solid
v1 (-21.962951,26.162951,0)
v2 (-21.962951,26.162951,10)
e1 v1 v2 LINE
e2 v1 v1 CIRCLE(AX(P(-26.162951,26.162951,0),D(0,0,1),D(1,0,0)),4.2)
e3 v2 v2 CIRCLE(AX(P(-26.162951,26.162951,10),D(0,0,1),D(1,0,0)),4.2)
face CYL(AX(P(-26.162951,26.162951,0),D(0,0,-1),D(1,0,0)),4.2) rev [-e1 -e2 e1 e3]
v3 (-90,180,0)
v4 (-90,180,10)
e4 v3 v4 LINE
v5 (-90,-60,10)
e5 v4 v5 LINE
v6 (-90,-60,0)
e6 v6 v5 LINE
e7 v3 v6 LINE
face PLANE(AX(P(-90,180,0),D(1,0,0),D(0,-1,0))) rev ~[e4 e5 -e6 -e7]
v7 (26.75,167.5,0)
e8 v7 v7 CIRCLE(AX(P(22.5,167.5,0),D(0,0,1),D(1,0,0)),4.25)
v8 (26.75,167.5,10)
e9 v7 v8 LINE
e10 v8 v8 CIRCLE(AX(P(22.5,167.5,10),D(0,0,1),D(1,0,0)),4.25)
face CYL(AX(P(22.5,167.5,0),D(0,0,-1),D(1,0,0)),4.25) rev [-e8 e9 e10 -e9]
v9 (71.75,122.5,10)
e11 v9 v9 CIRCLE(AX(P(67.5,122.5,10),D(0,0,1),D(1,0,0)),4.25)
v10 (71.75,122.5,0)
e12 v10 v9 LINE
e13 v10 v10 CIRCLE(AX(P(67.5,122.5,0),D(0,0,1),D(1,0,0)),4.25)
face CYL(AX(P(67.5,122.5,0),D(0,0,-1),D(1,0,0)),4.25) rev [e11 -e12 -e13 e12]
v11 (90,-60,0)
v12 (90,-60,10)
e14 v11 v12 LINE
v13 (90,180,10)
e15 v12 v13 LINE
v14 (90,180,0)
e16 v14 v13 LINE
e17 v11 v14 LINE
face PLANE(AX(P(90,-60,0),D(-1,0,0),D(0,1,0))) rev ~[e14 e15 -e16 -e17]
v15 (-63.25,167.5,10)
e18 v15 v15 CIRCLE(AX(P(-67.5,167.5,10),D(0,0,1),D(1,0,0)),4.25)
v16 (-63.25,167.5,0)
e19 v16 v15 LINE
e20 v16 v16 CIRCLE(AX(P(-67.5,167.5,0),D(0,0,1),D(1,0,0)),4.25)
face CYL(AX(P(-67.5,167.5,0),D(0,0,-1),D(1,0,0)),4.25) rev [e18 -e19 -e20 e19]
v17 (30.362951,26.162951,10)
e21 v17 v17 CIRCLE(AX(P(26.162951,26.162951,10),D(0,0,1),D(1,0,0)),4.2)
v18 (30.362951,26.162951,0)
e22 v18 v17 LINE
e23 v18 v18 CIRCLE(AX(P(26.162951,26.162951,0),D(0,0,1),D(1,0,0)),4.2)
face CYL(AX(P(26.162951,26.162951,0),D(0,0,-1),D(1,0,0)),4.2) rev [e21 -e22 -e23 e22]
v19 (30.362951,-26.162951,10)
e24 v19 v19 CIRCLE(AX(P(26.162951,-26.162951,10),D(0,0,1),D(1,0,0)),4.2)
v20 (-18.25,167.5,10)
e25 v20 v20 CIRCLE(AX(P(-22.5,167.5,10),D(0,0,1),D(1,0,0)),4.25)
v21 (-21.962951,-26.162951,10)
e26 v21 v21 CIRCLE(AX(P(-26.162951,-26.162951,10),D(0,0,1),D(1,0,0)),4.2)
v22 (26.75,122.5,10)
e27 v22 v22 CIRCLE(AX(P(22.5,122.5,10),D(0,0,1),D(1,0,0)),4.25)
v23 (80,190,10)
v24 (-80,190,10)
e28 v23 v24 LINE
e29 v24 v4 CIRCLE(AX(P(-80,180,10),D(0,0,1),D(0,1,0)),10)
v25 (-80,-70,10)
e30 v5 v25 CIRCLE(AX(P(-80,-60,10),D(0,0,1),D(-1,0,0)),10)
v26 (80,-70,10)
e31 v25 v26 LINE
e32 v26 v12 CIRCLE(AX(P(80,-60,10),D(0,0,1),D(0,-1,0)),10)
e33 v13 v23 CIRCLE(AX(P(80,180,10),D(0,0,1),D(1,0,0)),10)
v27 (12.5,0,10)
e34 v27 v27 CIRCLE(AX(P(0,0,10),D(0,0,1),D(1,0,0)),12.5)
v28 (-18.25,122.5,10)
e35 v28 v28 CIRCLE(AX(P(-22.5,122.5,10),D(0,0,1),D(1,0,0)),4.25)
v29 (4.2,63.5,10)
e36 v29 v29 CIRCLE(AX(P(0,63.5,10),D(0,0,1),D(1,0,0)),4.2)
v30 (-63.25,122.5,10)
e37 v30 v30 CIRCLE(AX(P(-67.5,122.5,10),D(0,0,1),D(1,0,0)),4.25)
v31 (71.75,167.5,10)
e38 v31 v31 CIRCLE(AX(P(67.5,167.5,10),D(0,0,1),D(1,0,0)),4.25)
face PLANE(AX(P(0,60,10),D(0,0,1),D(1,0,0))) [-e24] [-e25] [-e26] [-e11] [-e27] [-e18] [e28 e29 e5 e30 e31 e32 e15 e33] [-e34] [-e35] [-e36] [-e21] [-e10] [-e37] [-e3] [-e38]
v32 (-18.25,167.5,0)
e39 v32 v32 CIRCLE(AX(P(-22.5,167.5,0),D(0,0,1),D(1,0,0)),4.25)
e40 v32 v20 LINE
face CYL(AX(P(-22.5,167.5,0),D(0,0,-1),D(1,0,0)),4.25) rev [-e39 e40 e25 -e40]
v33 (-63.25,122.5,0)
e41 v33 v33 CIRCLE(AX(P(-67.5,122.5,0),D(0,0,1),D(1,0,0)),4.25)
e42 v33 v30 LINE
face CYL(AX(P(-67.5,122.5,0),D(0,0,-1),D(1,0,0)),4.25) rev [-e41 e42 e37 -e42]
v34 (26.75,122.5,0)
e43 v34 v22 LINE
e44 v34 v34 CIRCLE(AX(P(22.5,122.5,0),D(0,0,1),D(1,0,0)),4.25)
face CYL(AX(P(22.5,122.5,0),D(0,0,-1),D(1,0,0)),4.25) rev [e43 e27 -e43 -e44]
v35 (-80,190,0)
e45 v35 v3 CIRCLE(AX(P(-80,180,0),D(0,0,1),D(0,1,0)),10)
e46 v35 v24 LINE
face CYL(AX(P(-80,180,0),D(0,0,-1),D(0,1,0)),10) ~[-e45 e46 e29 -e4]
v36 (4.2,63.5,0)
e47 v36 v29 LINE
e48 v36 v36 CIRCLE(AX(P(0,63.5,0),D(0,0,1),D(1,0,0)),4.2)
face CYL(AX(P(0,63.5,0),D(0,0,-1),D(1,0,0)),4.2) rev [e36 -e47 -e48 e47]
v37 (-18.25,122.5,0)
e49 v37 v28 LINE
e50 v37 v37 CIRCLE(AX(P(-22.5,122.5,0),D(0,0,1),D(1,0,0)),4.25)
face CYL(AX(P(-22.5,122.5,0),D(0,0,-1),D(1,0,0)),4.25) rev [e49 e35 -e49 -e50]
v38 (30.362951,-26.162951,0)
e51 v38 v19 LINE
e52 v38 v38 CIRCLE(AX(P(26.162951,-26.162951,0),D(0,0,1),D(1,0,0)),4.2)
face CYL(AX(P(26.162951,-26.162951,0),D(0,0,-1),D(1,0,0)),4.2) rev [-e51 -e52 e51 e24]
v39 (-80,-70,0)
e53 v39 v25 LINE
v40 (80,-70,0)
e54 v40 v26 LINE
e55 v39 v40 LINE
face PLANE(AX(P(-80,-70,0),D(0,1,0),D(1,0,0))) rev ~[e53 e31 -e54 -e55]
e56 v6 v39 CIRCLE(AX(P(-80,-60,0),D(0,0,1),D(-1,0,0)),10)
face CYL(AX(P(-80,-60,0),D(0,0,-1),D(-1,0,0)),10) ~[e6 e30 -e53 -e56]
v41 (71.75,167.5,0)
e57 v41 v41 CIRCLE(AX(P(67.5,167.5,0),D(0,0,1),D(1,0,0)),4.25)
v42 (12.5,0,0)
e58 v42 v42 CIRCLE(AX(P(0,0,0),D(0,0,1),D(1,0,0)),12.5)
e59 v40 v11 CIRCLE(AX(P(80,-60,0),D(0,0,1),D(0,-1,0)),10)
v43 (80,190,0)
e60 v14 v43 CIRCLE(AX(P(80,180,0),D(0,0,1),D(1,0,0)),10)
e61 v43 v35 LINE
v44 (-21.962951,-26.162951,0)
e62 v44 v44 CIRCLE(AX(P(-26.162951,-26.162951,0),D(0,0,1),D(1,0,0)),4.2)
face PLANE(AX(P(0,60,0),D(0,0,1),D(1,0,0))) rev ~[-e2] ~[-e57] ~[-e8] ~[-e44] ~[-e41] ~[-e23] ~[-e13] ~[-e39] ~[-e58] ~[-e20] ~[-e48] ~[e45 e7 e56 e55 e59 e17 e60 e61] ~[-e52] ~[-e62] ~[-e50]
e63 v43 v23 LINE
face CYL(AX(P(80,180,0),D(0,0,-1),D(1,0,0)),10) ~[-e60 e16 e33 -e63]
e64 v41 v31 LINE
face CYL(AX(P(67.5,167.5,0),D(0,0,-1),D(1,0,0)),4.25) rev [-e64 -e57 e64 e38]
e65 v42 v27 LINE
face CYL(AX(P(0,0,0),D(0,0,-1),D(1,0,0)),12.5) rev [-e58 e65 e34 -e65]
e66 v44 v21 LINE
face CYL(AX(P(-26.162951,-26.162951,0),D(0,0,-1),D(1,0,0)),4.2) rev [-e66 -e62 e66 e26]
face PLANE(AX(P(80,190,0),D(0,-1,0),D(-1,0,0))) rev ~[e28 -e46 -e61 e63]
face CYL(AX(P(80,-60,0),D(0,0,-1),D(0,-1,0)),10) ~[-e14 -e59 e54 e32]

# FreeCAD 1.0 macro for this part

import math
import FreeCAD as App
import Part
import Sketcher
from FreeCAD import Vector
Q = App.Units.Quantity

doc = App.newDocument("Part")
body = doc.addObject("PartDesign::Body", "Body")

sketch1 = doc.addObject("Sketcher::SketchObject", "Sketch")
body.addObject(sketch1)
sketch1.AttachmentSupport = (doc.XY_Plane, [""])
sketch1.MapMode = "FlatFace"
sketch1.addGeometry([
    Part.LineSegment(Vector(-80, -70, 0), Vector(80, -70, 0)),
    Part.ArcOfCircle(Part.Circle(Vector(80, -60, 0), Vector(0, 0, 1), 10), math.radians(-90), math.radians(0)),
    Part.LineSegment(Vector(90, -60, 0), Vector(90, 180, 0)),
    Part.ArcOfCircle(Part.Circle(Vector(80, 180, 0), Vector(0, 0, 1), 10), math.radians(0), math.radians(90)),
    Part.LineSegment(Vector(80, 190, 0), Vector(-80, 190, 0)),
    Part.ArcOfCircle(Part.Circle(Vector(-80, 180, 0), Vector(0, 0, 1), 10), math.radians(90), math.radians(180)),
    Part.LineSegment(Vector(-90, 180, 0), Vector(-90, -60, 0)),
    Part.ArcOfCircle(Part.Circle(Vector(-80, -60, 0), Vector(0, 0, 1), 10), math.radians(180), math.radians(270)),
    Part.Circle(Vector(-26.2, -26.2, 0), Vector(0, 0, 1), 4.2),
    Part.Circle(Vector(-26.2, 26.2, 0), Vector(0, 0, 1), 4.2),
    Part.Circle(Vector(26.2, -26.2, 0), Vector(0, 0, 1), 4.2),
    Part.Circle(Vector(0, 0, 0), Vector(0, 0, 1), 12.5),
    Part.Circle(Vector(26.2, 26.2, 0), Vector(0, 0, 1), 4.2),
    Part.Circle(Vector(0, 63.5, 0), Vector(0, 0, 1), 4.2),
    Part.Circle(Vector(-67.5, 122.5, 0), Vector(0, 0, 1), 4.2),
    Part.Circle(Vector(-67.5, 167.5, 0), Vector(0, 0, 1), 4.2),
    Part.Circle(Vector(-22.5, 122.5, 0), Vector(0, 0, 1), 4.2),
    Part.Circle(Vector(-22.5, 167.5, 0), Vector(0, 0, 1), 4.2),
    Part.Circle(Vector(22.5, 122.5, 0), Vector(0, 0, 1), 4.2),
    Part.Circle(Vector(22.5, 167.5, 0), Vector(0, 0, 1), 4.2),
    Part.Circle(Vector(67.5, 122.5, 0), Vector(0, 0, 1), 4.2),
    Part.Circle(Vector(67.5, 167.5, 0), Vector(0, 0, 1), 4.2),
], False)
sketch1.addConstraint([
    Sketcher.Constraint("Tangent", 0, 2, 1, 1),
    Sketcher.Constraint("Tangent", 1, 2, 2, 1),
    Sketcher.Constraint("Tangent", 2, 2, 3, 1),
    Sketcher.Constraint("Tangent", 3, 2, 4, 1),
    Sketcher.Constraint("Tangent", 4, 2, 5, 1),
    Sketcher.Constraint("Tangent", 5, 2, 6, 1),
    Sketcher.Constraint("Tangent", 6, 2, 7, 1),
    Sketcher.Constraint("Tangent", 7, 2, 0, 1),
    Sketcher.Constraint("Horizontal", 0),
    Sketcher.Constraint("Vertical", 2),
    Sketcher.Constraint("Horizontal", 4),
    Sketcher.Constraint("Vertical", 6),
    Sketcher.Constraint("Coincident", 11, 3, -1, 1),
    Sketcher.Constraint("Equal", 1, 3),
    Sketcher.Constraint("Equal", 3, 5),
    Sketcher.Constraint("Equal", 5, 7),
    Sketcher.Constraint("Equal", 8, 9),
    Sketcher.Constraint("Equal", 9, 10),
    Sketcher.Constraint("Equal", 10, 12),
    Sketcher.Constraint("Equal", 12, 13),
    Sketcher.Constraint("Equal", 14, 15),
    Sketcher.Constraint("Equal", 15, 16),
    Sketcher.Constraint("Equal", 16, 17),
    Sketcher.Constraint("Equal", 17, 18),
    Sketcher.Constraint("Equal", 18, 19),
    Sketcher.Constraint("Equal", 19, 20),
    Sketcher.Constraint("Equal", 20, 21),
    Sketcher.Constraint("Symmetric", 9, 3, 10, 3, -1, 1),
    Sketcher.Constraint("Symmetric", 8, 3, 12, 3, -1, 1),
    Sketcher.Constraint("Symmetric", 8, 3, 10, 3, -2),
    Sketcher.Constraint("Symmetric", 16, 3, 18, 3, -2),
    Sketcher.Constraint("Symmetric", 17, 3, 19, 3, -2),
    Sketcher.Constraint("Symmetric", 14, 3, 20, 3, -2),
    Sketcher.Constraint("Symmetric", 15, 3, 21, 3, -2),
    Sketcher.Constraint("PointOnObject", 13, 3, -2),
    Sketcher.Constraint("Horizontal", 14, 3, 16, 3),
    Sketcher.Constraint("Horizontal", 15, 3, 17, 3),
    Sketcher.Constraint("Vertical", 14, 3, 15, 3),
    Sketcher.Constraint("Vertical", 16, 3, 17, 3),
    Sketcher.Constraint("Diameter", 11, Q("25 mm")),
    Sketcher.Constraint("Radius", 1, Q("10 mm")),
    Sketcher.Constraint("Diameter", 8, Q("8.4 mm")),
    Sketcher.Constraint("Diameter", 14, Q("8.5 mm")),
    Sketcher.Constraint("DistanceX", 0, 1, 0, 2, Q("160 mm")),
    Sketcher.Constraint("DistanceY", 2, 1, 2, 2, Q("240 mm")),
    Sketcher.Constraint("DistanceX", -1, 1, 1, 3, Q("80 mm")),
    Sketcher.Constraint("DistanceY", 1, 3, -1, 1, Q("60 mm")),
    Sketcher.Constraint("DistanceY", 13, 3, 14, 3, Q("59 mm")),
    Sketcher.Constraint("DistanceY", 14, 3, 15, 3, Q("45 mm")),
    Sketcher.Constraint("DistanceX", 14, 3, 16, 3, Q("45 mm")),
    Sketcher.Constraint("DistanceX", 16, 3, 18, 3, Q("45 mm")),
    Sketcher.Constraint("DistanceY", -1, 1, 13, 3, Q("63.5 mm")),
    Sketcher.Constraint("DistanceY", 8, 3, 9, 3, Q("52.325902 mm")),
    Sketcher.Constraint("DistanceX", 8, 3, 10, 3, Q("52.325902 mm")),
])
pad1 = doc.addObject("PartDesign::Pad", "Pad")
body.addObject(pad1)
pad1.Profile = sketch1
pad1.Length = 10

doc.recompute()
